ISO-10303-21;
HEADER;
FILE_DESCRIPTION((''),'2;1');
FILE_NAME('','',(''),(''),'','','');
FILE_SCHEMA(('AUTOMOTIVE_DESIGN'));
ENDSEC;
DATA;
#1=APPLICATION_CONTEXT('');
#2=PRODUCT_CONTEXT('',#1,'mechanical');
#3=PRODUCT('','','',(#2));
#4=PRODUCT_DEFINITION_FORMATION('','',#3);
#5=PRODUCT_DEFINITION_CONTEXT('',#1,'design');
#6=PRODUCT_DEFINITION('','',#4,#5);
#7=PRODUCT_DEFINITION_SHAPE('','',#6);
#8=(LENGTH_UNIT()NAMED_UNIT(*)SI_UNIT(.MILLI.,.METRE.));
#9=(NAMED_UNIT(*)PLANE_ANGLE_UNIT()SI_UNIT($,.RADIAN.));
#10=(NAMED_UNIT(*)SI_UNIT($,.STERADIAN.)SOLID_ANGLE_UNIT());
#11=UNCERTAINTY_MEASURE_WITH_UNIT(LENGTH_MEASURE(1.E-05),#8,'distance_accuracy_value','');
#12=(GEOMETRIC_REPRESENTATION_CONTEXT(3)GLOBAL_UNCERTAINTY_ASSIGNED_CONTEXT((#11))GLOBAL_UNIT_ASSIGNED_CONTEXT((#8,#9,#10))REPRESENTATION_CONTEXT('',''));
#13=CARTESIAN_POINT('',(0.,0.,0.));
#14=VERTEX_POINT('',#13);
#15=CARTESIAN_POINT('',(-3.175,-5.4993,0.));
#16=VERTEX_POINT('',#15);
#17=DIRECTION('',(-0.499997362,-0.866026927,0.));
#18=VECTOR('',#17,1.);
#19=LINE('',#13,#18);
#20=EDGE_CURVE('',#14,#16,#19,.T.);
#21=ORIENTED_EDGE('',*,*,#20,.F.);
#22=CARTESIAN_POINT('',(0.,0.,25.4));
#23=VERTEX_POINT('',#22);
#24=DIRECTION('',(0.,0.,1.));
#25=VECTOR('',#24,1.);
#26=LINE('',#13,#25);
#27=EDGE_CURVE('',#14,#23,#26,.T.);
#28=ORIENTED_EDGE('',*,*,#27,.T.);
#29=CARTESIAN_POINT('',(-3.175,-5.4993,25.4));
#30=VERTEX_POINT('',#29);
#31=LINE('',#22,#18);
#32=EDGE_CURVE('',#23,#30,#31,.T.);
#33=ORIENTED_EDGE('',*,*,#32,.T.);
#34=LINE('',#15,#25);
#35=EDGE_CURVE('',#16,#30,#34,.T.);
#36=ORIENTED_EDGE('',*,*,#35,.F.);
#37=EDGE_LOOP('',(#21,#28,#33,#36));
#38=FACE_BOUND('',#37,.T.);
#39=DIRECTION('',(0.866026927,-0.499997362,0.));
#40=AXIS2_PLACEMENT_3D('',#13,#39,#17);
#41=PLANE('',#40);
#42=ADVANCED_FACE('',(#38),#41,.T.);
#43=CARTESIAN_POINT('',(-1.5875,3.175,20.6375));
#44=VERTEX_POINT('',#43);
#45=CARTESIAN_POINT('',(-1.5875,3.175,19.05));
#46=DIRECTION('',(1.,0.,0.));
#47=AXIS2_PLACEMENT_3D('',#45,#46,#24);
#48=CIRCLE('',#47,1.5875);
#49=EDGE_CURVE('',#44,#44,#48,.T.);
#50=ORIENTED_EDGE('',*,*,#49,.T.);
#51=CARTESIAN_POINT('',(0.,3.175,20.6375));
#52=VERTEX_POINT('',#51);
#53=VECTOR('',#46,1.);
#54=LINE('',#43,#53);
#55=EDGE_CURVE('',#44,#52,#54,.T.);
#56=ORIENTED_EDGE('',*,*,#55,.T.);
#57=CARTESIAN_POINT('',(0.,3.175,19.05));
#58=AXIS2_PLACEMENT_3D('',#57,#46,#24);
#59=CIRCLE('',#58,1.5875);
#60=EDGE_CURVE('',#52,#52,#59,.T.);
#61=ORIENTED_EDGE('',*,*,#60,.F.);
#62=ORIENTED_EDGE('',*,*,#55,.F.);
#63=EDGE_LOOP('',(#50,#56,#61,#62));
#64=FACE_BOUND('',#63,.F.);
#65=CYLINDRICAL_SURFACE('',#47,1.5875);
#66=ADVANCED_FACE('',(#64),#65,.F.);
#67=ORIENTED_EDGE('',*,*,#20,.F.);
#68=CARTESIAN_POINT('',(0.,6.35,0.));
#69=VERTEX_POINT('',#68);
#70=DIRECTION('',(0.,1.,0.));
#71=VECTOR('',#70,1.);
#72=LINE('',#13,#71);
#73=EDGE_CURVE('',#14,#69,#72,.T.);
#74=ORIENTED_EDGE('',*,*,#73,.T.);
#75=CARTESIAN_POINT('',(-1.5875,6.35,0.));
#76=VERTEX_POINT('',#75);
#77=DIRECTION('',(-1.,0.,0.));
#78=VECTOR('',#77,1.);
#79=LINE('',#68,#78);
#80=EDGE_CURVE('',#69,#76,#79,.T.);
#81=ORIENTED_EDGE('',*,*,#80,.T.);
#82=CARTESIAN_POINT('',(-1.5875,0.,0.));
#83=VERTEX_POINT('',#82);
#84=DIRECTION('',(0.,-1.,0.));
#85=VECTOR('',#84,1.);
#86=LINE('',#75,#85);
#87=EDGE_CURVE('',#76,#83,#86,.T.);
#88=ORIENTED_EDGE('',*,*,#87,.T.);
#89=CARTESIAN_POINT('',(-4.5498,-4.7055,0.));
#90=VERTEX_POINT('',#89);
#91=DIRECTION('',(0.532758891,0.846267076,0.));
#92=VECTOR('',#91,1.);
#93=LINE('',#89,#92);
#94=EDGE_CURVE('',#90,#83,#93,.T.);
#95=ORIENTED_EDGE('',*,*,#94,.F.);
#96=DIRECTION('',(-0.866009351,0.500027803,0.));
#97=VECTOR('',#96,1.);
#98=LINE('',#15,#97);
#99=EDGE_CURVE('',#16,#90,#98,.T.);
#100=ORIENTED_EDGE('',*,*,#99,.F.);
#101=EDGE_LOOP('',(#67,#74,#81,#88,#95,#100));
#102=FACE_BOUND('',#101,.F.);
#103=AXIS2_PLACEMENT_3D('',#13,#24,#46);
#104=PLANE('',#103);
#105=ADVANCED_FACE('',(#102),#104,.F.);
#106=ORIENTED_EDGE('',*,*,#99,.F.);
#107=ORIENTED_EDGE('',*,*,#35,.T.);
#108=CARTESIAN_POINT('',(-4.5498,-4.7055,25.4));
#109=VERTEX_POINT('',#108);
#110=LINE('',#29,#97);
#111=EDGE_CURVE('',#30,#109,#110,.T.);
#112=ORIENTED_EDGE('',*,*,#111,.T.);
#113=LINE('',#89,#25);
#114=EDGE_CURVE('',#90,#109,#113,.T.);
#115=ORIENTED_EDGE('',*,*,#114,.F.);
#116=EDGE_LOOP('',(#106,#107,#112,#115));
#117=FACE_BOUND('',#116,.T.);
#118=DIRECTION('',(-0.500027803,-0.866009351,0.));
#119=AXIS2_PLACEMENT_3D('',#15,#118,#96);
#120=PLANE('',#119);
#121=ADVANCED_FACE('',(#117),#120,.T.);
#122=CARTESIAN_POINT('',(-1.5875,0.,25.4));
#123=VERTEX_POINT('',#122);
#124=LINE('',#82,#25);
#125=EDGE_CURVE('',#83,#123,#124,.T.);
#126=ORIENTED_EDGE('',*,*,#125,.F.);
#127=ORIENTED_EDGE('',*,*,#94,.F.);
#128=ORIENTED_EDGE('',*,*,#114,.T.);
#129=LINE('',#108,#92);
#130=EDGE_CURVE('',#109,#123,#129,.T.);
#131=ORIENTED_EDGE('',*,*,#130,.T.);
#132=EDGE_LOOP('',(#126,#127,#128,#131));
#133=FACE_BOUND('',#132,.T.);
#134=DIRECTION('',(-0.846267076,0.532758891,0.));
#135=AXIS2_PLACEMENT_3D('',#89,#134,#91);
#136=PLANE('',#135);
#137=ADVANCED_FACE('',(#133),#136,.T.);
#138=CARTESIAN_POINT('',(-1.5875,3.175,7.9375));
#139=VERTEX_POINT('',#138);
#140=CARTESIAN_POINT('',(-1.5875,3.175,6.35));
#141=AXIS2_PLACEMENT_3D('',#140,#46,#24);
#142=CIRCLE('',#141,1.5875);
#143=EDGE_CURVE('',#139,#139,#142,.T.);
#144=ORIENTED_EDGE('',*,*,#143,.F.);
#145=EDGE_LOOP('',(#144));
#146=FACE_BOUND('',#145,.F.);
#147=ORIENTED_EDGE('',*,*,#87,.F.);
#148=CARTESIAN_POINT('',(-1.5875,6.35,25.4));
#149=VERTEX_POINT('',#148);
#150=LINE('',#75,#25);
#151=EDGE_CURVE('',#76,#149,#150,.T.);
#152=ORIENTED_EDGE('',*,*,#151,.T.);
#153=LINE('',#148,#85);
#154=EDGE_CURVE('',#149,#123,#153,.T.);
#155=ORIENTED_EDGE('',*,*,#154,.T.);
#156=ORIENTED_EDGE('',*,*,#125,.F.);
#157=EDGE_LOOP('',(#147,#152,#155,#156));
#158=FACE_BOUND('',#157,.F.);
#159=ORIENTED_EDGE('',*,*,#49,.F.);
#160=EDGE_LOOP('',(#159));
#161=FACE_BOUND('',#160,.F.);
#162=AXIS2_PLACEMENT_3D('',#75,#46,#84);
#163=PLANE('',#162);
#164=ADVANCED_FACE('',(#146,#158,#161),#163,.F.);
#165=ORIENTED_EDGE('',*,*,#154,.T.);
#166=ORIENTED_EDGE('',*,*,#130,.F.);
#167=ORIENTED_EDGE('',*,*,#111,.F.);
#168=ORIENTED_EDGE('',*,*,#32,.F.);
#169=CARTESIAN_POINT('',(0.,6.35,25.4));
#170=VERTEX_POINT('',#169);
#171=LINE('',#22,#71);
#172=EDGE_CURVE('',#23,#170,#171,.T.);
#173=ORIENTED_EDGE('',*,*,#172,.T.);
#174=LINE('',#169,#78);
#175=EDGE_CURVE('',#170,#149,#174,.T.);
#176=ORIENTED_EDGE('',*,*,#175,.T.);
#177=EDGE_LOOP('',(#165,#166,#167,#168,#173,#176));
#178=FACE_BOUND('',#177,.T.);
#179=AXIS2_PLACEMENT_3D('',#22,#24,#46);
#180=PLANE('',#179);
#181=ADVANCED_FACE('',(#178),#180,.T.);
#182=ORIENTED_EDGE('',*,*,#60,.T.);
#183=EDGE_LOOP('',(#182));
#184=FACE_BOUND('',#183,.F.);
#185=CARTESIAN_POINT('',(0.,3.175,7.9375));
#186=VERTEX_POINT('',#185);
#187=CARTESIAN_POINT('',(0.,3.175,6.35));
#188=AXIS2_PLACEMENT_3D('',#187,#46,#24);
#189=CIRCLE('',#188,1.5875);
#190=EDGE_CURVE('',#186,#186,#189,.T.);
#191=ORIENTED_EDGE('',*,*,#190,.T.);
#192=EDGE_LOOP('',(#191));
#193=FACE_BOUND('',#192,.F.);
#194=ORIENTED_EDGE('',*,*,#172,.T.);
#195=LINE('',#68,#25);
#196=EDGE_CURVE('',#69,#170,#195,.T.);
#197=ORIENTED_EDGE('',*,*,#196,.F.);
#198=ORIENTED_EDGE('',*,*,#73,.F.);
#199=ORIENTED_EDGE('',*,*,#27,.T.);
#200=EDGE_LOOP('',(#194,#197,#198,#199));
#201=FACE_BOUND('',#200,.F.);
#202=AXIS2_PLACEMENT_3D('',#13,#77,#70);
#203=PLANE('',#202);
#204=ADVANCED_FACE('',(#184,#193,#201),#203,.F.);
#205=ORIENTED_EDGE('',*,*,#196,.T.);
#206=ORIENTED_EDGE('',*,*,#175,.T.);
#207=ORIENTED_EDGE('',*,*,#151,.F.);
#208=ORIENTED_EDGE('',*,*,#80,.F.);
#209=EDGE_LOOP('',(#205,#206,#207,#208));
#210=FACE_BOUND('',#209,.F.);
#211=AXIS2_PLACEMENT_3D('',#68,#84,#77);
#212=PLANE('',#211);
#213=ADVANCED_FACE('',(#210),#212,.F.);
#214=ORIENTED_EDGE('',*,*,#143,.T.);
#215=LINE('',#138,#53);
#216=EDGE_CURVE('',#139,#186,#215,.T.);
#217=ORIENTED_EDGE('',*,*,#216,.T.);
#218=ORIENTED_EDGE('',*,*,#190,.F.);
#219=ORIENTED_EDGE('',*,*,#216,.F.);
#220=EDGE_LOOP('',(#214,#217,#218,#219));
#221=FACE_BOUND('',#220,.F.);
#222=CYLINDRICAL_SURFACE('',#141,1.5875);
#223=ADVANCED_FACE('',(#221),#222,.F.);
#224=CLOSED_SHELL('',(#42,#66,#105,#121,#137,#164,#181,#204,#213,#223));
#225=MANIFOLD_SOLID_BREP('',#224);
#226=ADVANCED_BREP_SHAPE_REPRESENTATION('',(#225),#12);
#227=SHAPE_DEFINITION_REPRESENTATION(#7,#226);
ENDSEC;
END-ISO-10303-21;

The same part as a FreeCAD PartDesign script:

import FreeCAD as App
import Part
import Sketcher

V = App.Vector
Q = App.Units.Quantity

doc = App.newDocument("Part")
body = doc.addObject("PartDesign::Body", "Body")

sketch1 = doc.addObject("Sketcher::SketchObject", "Sketch")
body.addObject(sketch1)
sketch1.AttachmentSupport = (doc.XY_Plane, [""])
sketch1.MapMode = "FlatFace"
sketch1.addGeometry(Part.LineSegment(V(-3.175, -5.4993, 0), V(0, 0, 0)), False)
sketch1.addGeometry(Part.LineSegment(V(0, 0, 0), V(0, 6.35, 0)), False)
sketch1.addGeometry(Part.LineSegment(V(0, 6.35, 0), V(-1.5875, 6.35, 0)), False)
sketch1.addGeometry(Part.LineSegment(V(-1.5875, 6.35, 0), V(-1.5875, 0, 0)), False)
sketch1.addGeometry(Part.LineSegment(V(-1.5875, 0, 0), V(-4.5498, -4.7055, 0)), False)
sketch1.addGeometry(Part.LineSegment(V(-4.5498, -4.7055, 0), V(-3.175, -5.4993, 0)), False)
sketch1.addConstraint(Sketcher.Constraint("Coincident", 0, 2, 1, 1))
sketch1.addConstraint(Sketcher.Constraint("Coincident", 1, 2, 2, 1))
sketch1.addConstraint(Sketcher.Constraint("Coincident", 2, 2, 3, 1))
sketch1.addConstraint(Sketcher.Constraint("Coincident", 3, 2, 4, 1))
sketch1.addConstraint(Sketcher.Constraint("Coincident", 4, 2, 5, 1))
sketch1.addConstraint(Sketcher.Constraint("Coincident", 5, 2, 0, 1))
sketch1.addConstraint(Sketcher.Constraint("Vertical", 1))
sketch1.addConstraint(Sketcher.Constraint("Horizontal", 2))
sketch1.addConstraint(Sketcher.Constraint("Vertical", 3))
sketch1.addConstraint(Sketcher.Constraint("Coincident", 0, 2, -1, 1))
sketch1.addConstraint(Sketcher.Constraint("PointOnObject", 3, 2, -1))
sketch1.addConstraint(Sketcher.Constraint("Perpendicular", 0, 5))
sketch1.addConstraint(Sketcher.Constraint("DistanceY", 1, 1, 1, 2, Q("0.25 in")))
sketch1.addConstraint(Sketcher.Constraint("Distance", 0, Q("0.25 in")))
sketch1.addConstraint(Sketcher.Constraint("DistanceX", 2, 2, 2, 1, Q("0.0625 in")))
sketch1.addConstraint(Sketcher.Constraint("Distance", 5, Q("0.0625 in")))
sketch1.addConstraint(Sketcher.Constraint("Angle", 0, Q("60.0002 deg")))
pad1 = doc.addObject("PartDesign::Pad", "Pad")
body.addObject(pad1)
pad1.Profile = sketch1
pad1.Length = Q("1 in")

sketch2 = doc.addObject("Sketcher::SketchObject", "Sketch001")
body.addObject(sketch2)
sketch2.AttachmentSupport = (doc.YZ_Plane, [""])
sketch2.MapMode = "FlatFace"
sketch2.AttachmentOffset = App.Placement(V(0, 0, -0.0625 * 25.4), App.Rotation())
sketch2.addGeometry(Part.Circle(V(3.175, 6.35, 0), V(0, 0, 1), 1.5875), False)
sketch2.addGeometry(Part.Circle(V(3.175, 19.05, 0), V(0, 0, 1), 1.5875), False)
sketch2.addConstraint(Sketcher.Constraint("Equal", 0, 1))
sketch2.addConstraint(Sketcher.Constraint("Vertical", 0, 3, 1, 3))
sketch2.addConstraint(Sketcher.Constraint("Diameter", 0, Q("0.125 in")))
sketch2.addConstraint(Sketcher.Constraint("DistanceY", 0, 3, 1, 3, Q("0.5 in")))
sketch2.addConstraint(Sketcher.Constraint("DistanceY", -1, 1, 0, 3, Q("0.25 in")))
sketch2.addConstraint(Sketcher.Constraint("DistanceX", -1, 1, 0, 3, Q("0.125 in")))
doc.recompute()
hole = doc.addObject("PartDesign::Hole", "Hole")
body.addObject(hole)
hole.Profile = sketch2
hole.ThreadType = "None"
hole.Diameter = Q("0.125 in")
hole.DepthType = "Dimension"
hole.Depth = Q("1 in")
hole.DrillPoint = "Angled"
hole.DrillPointAngle = 118
hole.Reversed = True

doc.recompute()
